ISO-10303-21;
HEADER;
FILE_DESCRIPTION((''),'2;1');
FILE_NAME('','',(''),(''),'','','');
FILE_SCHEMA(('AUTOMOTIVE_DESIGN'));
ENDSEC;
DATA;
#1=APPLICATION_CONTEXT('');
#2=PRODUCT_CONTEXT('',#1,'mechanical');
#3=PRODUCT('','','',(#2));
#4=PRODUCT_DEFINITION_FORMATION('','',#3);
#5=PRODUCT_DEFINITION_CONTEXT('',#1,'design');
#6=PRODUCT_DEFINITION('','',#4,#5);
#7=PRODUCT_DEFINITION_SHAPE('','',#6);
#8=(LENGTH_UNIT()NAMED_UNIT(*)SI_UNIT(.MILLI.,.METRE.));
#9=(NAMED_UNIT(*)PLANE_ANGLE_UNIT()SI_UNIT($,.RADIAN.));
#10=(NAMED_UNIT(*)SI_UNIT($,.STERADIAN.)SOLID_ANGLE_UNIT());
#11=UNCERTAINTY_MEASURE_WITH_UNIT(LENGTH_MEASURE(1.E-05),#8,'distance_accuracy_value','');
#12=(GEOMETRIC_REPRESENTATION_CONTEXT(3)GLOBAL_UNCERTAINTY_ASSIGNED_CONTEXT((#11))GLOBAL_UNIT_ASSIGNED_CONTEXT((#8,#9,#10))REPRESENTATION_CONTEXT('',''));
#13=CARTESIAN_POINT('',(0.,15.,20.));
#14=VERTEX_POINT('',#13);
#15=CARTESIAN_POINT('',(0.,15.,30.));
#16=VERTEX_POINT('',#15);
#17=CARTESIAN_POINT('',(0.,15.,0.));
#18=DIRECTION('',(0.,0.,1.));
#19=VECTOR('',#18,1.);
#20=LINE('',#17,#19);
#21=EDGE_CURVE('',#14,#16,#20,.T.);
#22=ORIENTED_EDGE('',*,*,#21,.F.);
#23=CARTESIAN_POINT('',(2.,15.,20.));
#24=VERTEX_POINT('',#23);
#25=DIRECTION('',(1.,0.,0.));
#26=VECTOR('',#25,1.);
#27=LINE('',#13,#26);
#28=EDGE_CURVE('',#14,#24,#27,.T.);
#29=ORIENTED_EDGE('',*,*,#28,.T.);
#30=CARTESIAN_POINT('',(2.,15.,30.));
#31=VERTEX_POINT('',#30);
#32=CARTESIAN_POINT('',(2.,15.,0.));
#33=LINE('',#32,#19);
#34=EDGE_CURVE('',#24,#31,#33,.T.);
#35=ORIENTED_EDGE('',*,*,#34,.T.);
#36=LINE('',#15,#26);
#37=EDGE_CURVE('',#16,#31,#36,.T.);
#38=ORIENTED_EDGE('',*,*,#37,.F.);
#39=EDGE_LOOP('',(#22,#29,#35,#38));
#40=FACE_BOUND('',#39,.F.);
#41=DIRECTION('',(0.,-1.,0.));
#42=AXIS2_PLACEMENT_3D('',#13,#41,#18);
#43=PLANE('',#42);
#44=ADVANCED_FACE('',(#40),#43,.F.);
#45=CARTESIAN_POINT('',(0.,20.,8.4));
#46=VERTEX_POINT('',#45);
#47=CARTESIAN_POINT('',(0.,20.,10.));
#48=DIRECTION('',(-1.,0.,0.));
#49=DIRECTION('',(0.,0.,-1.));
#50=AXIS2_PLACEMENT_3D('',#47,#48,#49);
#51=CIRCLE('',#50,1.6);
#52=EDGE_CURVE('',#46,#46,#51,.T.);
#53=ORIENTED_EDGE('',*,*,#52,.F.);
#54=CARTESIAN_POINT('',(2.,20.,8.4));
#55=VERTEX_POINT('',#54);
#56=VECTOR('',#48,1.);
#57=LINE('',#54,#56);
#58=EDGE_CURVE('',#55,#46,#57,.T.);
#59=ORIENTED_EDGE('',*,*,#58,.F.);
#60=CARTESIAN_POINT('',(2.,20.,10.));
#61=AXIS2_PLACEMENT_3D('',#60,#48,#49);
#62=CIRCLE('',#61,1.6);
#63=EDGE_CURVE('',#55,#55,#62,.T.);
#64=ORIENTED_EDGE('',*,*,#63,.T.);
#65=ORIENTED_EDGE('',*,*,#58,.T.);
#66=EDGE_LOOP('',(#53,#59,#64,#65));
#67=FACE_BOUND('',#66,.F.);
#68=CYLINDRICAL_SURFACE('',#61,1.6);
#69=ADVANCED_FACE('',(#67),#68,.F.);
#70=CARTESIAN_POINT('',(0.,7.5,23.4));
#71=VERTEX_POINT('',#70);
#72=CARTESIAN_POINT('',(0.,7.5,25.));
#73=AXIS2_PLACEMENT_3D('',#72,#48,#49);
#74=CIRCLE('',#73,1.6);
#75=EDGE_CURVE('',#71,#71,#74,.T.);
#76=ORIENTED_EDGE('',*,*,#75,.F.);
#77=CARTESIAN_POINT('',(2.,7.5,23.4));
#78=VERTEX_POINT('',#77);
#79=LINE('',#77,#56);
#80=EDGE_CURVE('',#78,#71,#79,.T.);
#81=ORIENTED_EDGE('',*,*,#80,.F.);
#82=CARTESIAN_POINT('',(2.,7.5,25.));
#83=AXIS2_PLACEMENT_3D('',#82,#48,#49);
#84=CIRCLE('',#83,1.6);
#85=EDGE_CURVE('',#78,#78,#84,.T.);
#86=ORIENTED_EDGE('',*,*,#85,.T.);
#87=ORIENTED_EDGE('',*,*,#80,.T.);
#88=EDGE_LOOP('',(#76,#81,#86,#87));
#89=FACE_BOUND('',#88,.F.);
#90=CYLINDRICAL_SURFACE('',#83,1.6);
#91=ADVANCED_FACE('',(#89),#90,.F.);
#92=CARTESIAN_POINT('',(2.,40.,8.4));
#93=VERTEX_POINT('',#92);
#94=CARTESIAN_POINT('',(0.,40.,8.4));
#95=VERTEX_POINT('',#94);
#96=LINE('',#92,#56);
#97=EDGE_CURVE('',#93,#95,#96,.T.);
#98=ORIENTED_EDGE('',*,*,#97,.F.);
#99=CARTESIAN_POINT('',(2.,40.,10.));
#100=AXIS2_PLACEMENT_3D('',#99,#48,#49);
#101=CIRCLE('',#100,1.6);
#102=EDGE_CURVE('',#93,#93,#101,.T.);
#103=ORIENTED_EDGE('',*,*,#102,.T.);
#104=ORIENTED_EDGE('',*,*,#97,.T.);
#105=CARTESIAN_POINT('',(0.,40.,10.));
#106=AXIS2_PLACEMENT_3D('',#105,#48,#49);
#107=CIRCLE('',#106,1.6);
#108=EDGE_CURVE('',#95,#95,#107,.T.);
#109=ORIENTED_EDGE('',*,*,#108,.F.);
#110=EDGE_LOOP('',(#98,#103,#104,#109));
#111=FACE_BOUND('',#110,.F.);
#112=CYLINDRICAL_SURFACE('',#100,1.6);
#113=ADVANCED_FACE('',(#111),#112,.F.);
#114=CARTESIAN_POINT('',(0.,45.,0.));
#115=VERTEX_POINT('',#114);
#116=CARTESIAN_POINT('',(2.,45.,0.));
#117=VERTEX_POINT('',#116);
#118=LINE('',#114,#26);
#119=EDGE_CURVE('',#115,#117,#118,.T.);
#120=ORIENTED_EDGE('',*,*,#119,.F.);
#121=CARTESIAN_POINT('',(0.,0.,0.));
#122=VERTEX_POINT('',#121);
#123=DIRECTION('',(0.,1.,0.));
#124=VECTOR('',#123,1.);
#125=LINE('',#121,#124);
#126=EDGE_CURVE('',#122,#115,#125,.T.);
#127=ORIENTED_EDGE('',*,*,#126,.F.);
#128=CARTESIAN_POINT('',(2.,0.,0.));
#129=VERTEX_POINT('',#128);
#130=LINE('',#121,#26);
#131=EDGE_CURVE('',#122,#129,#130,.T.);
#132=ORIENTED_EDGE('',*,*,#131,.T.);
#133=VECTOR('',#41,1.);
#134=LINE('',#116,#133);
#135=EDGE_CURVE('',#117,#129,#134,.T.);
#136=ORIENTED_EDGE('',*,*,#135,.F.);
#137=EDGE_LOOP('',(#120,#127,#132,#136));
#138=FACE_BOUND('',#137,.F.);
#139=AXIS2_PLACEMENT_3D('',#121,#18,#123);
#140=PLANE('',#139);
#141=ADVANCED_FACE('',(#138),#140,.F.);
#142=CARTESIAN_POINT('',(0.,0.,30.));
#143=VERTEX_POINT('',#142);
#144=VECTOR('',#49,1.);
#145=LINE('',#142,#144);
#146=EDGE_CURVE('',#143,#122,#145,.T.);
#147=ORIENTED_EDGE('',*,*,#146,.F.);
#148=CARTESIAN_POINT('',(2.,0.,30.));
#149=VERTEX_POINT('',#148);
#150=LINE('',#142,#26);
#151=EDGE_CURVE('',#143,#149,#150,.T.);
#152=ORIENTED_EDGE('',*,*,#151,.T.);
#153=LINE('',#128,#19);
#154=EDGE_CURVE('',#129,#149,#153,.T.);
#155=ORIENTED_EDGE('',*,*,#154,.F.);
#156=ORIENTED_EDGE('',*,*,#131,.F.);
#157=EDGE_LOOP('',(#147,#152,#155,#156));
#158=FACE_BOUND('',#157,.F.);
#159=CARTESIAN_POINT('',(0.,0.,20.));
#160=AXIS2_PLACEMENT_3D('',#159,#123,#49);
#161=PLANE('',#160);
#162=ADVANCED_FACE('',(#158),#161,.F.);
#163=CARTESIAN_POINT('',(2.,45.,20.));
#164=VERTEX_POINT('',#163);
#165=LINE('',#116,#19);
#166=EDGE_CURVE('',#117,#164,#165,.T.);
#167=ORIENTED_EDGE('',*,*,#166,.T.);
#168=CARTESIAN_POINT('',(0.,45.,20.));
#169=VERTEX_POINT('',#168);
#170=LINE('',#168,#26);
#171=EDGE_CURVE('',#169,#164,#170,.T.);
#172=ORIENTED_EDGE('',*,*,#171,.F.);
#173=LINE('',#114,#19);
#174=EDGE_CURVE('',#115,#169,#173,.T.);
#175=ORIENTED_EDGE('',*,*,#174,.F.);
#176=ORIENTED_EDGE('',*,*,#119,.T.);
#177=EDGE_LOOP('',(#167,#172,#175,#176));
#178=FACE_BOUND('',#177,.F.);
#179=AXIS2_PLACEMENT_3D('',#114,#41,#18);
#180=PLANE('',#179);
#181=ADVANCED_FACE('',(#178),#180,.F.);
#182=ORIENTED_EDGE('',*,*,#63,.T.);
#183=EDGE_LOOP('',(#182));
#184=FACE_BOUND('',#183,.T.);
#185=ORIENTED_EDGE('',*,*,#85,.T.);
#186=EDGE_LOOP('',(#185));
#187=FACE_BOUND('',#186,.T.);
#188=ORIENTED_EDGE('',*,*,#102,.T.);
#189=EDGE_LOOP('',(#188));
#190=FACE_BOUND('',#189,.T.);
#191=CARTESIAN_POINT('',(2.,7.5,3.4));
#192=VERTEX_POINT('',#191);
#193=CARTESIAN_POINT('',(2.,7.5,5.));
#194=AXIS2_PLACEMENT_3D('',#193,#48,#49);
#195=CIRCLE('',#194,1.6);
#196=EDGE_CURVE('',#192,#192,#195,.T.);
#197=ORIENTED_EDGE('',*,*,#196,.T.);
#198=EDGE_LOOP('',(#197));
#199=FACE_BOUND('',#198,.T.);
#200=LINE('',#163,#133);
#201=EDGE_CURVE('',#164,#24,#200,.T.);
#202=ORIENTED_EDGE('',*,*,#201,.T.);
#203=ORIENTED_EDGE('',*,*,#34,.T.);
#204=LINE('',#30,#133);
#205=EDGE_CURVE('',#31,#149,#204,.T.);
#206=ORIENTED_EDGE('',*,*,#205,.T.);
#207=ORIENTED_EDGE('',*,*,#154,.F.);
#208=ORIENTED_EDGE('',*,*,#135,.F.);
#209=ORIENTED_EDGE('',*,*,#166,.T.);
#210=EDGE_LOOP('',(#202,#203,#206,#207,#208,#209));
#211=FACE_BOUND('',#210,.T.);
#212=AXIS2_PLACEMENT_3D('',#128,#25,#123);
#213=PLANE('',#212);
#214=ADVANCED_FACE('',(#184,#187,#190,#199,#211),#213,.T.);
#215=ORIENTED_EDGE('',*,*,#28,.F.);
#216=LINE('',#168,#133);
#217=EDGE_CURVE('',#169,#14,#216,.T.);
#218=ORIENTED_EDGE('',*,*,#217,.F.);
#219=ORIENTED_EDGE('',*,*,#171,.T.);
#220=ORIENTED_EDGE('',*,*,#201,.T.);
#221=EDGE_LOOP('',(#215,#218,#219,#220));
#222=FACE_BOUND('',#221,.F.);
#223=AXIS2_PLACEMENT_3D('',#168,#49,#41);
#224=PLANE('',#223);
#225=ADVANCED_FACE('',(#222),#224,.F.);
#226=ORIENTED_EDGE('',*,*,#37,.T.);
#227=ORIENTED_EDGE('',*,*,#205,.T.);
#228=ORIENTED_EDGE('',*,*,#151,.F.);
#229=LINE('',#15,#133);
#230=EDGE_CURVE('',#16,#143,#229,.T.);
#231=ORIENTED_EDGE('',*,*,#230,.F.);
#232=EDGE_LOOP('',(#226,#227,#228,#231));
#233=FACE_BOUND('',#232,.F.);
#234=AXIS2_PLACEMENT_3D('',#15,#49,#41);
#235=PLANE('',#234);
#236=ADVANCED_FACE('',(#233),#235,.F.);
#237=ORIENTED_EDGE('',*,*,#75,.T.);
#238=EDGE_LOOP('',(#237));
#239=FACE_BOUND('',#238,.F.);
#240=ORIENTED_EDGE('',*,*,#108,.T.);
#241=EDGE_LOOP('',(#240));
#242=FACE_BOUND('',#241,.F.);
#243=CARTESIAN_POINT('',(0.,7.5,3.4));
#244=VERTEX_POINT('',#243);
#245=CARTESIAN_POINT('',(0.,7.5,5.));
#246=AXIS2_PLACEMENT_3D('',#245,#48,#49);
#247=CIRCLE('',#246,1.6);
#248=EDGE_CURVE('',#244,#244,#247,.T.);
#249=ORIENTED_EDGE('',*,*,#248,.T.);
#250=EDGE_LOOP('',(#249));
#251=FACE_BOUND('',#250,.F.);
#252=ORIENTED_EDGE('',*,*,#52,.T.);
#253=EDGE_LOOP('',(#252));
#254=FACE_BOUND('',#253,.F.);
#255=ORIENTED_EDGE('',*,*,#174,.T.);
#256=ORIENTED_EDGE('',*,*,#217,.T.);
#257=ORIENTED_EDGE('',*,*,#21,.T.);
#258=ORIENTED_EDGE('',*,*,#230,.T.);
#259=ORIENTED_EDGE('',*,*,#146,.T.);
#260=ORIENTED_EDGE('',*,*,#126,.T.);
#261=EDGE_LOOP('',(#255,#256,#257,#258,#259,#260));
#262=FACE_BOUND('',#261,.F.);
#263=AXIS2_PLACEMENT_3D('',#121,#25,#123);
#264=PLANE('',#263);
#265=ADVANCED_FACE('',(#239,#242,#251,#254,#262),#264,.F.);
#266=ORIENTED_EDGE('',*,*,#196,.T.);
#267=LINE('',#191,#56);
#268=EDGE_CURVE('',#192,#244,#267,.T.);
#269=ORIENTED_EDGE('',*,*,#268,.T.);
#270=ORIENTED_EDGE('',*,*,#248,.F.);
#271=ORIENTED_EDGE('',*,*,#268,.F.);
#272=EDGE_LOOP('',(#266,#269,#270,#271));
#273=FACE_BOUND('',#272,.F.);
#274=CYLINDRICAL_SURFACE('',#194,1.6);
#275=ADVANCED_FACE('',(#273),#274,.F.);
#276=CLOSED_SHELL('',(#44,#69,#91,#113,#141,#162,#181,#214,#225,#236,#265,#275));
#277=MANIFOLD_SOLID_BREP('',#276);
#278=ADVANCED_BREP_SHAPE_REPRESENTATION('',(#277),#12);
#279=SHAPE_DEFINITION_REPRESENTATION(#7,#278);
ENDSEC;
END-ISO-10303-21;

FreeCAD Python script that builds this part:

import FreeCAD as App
import Part
import Sketcher
from FreeCAD import Vector
Q = App.Units.Quantity


def add_polygon(sketch, points):
    """Adds a closed chain of lines whose ends are joined by coincident constraints."""
    first, n = sketch.GeometryCount, len(points)
    for a, b in zip(points, points[1:] + points[:1]):
        sketch.addGeometry(Part.LineSegment(App.Vector(*a, 0), App.Vector(*b, 0)), False)
    for i in range(n):
        sketch.addConstraint(Sketcher.Constraint("Coincident", first + i, 2, first + (i + 1) % n, 1))

doc = App.newDocument("Part")
body = doc.addObject("PartDesign::Body", "Body")

sketch1 = body.newObject("Sketcher::SketchObject", "Sketch")
sketch1.AttachmentSupport = (doc.getObject("YZ_Plane"), [""])
sketch1.MapMode = "FlatFace"
add_polygon(sketch1, [(0, 0), (45, 0), (45, 20), (15, 20), (15, 30), (0, 30)])
sketch1.addConstraint(Sketcher.Constraint("Horizontal", 0))
sketch1.addConstraint(Sketcher.Constraint("Vertical", 1))
sketch1.addConstraint(Sketcher.Constraint("Horizontal", 2))
sketch1.addConstraint(Sketcher.Constraint("Vertical", 3))
sketch1.addConstraint(Sketcher.Constraint("Horizontal", 4))
sketch1.addConstraint(Sketcher.Constraint("Vertical", 5))
sketch1.addConstraint(Sketcher.Constraint("Coincident", 5, 2, -1, 1))
sketch1.addConstraint(Sketcher.Constraint("Equal", 2, 5))
sketch1.addConstraint(Sketcher.Constraint("DistanceX", 2, 2, 2, 1, Q("30 mm")))
sketch1.addConstraint(Sketcher.Constraint("DistanceX", 4, 2, 4, 1, Q("15 mm")))
sketch1.addConstraint(Sketcher.Constraint("DistanceY", 1, 1, 1, 2, Q("20 mm")))
pad1 = body.newObject("PartDesign::Pad", "Pad")
pad1.Profile = sketch1
pad1.Length = 2

sketch2 = body.newObject("Sketcher::SketchObject", "Sketch001")
sketch2.AttachmentSupport = (doc.getObject("YZ_Plane"), [""])
sketch2.MapMode = "FlatFace"
sketch2.AttachmentOffset = App.Placement(Vector(0, 0, 2), App.Rotation())
sketch2.addGeometry(Part.Circle(Vector(7.5, 25, 0), Vector(0, 0, 1), 1.6), False)
sketch2.addGeometry(Part.Circle(Vector(7.5, 5, 0), Vector(0, 0, 1), 1.6), False)
sketch2.addGeometry(Part.Circle(Vector(20, 10, 0), Vector(0, 0, 1), 1.6), False)
sketch2.addGeometry(Part.Circle(Vector(40, 10, 0), Vector(0, 0, 1), 1.6), False)
sketch2.addConstraint(Sketcher.Constraint("Equal", 0, 1))
sketch2.addConstraint(Sketcher.Constraint("Equal", 1, 2))
sketch2.addConstraint(Sketcher.Constraint("Equal", 2, 3))
sketch2.addConstraint(Sketcher.Constraint("Horizontal", 2, 3, 3, 3))
sketch2.addConstraint(Sketcher.Constraint("Vertical", 0, 3, 1, 3))
sketch2.addConstraint(Sketcher.Constraint("Diameter", 0, Q("3.2 mm")))
sketch2.addConstraint(Sketcher.Constraint("DistanceY", -1, 1, 0, 3, Q("25 mm")))
sketch2.addConstraint(Sketcher.Constraint("DistanceY", -1, 1, 1, 3, Q("5 mm")))
sketch2.addConstraint(Sketcher.Constraint("DistanceX", -1, 1, 2, 3, Q("20 mm")))
sketch2.addConstraint(Sketcher.Constraint("DistanceY", -1, 1, 2, 3, Q("10 mm")))
sketch2.addConstraint(Sketcher.Constraint("DistanceX", -1, 1, 3, 3, Q("40 mm")))
sketch2.addConstraint(Sketcher.Constraint("DistanceX", -1, 1, 0, 3, Q("7.5 mm")))
doc.recompute()
hole = body.newObject("PartDesign::Hole", "Hole")
hole.Profile = sketch2
hole.ThreadType = "None"
hole.Diameter = 3.2
hole.DepthType = "ThroughAll"

doc.recompute()
